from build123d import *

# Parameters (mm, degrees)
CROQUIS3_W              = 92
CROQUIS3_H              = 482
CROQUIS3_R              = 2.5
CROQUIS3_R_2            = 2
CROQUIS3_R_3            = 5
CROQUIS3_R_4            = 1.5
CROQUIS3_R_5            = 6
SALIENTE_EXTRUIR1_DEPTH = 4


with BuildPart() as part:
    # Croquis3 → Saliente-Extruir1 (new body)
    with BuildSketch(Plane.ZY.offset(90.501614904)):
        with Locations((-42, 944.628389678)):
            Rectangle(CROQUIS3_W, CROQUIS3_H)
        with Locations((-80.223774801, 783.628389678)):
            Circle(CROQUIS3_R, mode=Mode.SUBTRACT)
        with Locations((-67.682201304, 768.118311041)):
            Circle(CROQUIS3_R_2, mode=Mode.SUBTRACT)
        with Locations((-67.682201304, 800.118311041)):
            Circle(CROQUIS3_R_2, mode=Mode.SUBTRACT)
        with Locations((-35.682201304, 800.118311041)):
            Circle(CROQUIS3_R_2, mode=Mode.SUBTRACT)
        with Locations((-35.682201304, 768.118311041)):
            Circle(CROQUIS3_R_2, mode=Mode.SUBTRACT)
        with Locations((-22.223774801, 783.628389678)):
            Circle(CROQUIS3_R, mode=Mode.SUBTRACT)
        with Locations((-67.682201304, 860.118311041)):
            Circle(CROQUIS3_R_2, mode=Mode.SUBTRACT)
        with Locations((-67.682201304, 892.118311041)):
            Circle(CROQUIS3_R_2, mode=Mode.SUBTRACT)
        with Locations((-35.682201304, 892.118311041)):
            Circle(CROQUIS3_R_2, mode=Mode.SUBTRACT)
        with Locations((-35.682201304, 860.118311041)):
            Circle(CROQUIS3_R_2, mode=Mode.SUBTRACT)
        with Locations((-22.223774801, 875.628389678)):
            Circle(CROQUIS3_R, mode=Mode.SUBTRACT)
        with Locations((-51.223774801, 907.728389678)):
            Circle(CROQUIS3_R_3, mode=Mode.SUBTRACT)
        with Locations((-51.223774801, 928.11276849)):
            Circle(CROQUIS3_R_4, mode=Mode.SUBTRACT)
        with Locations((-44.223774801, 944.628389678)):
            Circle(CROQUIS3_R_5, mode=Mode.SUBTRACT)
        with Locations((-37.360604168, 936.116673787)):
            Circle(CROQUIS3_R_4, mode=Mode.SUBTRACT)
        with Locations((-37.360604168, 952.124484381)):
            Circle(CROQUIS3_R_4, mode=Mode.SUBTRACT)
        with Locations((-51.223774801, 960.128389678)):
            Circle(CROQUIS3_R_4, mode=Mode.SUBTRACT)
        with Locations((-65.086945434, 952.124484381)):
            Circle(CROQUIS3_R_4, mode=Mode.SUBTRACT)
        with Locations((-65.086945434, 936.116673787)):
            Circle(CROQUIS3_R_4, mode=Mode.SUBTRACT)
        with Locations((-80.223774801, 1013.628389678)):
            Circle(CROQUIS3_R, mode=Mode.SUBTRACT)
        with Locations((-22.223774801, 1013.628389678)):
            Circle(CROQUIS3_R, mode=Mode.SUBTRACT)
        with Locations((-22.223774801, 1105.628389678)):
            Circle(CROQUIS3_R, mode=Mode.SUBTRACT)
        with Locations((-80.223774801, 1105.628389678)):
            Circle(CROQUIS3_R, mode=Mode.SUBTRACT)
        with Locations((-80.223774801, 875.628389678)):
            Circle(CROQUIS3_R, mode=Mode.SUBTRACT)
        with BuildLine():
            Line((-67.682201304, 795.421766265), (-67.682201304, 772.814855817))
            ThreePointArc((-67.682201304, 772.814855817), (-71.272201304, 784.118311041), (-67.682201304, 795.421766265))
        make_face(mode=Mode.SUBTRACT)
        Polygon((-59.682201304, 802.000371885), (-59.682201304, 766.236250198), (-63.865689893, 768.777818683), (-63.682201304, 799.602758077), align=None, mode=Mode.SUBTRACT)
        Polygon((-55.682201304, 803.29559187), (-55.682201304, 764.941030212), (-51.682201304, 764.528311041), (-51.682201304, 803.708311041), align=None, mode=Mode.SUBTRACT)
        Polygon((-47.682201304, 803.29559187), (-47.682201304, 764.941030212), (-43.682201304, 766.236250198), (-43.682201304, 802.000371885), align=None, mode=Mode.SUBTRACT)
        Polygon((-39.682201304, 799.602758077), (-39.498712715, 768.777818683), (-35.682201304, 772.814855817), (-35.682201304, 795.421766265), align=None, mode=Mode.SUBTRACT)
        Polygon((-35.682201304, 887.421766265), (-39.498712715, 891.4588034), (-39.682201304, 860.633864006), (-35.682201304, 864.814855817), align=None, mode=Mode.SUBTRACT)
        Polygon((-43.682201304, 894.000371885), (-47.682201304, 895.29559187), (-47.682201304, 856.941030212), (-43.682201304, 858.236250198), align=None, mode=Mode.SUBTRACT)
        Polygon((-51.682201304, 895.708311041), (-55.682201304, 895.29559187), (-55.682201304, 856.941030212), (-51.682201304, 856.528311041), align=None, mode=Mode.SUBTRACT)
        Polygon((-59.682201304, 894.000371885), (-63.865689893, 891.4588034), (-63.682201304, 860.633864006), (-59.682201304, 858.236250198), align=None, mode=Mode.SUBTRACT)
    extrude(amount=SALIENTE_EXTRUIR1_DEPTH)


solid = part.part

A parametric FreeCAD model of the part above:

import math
import FreeCAD as App
import Part
import Sketcher
from FreeCAD import Vector

doc = App.newDocument("Part")
params = doc.addObject("Spreadsheet::Sheet", "Params")
for row, (alias, value) in enumerate([
    ("sketch1_diameter", "5 mm"),
    ("sketch1_diameter2", "4 mm"),
    ("sketch1_diameter3", "3 mm"),
    ("sketch1_diameter4", "10 mm"),
    ("sketch1_diameter5", "12 mm"),
    ("pad1_length", "4 mm"),
], start=1):
    params.set(f"A{row}", alias)
    params.set(f"B{row}", "=" + value)
    params.setAlias(f"B{row}", alias)

body = doc.addObject("PartDesign::Body", "Body")

# Sketch on YZ plane
sketch1 = body.newObject("Sketcher::SketchObject", "Sketch")
sketch1.AttachmentSupport = (doc.getObject("YZ_Plane"), [""])
sketch1.MapMode = "FlatFace"
sketch1.AttachmentOffset = App.Placement(Vector(0, 0, -90.501615), App.Rotation())
sketch1.addGeometry([
    Part.LineSegment(Vector(1185.6, -88, 0), Vector(703.6, -88, 0)),  # 0
    Part.LineSegment(Vector(703.6, -88, 0), Vector(703.6, 4, 0)),  # 1
    Part.LineSegment(Vector(703.6, 4, 0), Vector(1185.6, 4, 0)),  # 2
    Part.LineSegment(Vector(1185.6, 4, 0), Vector(1185.6, -88, 0)),  # 3
    Part.Circle(Vector(783.6, -80.2, 0), Vector(0, 0, 1), 2.5),  # 4
    Part.Circle(Vector(768.1, -67.7, 0), Vector(0, 0, 1), 2),  # 5
    Part.ArcOfCircle(Part.Circle(Vector(784.1, -51.7, 0), Vector(0, 0, 1), 19.6), math.radians(-125), math.radians(-55)),  # 6
    Part.LineSegment(Vector(795.4, -67.7, 0), Vector(772.8, -67.7, 0)),  # 7
    Part.Circle(Vector(800.1, -67.7, 0), Vector(0, 0, 1), 2),  # 8
    Part.LineSegment(Vector(799.6, -63.7, 0), Vector(802, -59.7, 0)),  # 9
    Part.LineSegment(Vector(802, -59.7, 0), Vector(766.2, -59.7, 0)),  # 10
    Part.LineSegment(Vector(766.2, -59.7, 0), Vector(768.8, -63.9, 0)),  # 11
    Part.LineSegment(Vector(768.8, -63.9, 0), Vector(799.6, -63.7, 0)),  # 12
    Part.LineSegment(Vector(764.9, -55.7, 0), Vector(803.3, -55.7, 0)),  # 13
    Part.LineSegment(Vector(803.3, -55.7, 0), Vector(803.7, -51.7, 0)),  # 14
    Part.LineSegment(Vector(803.7, -51.7, 0), Vector(764.5, -51.7, 0)),  # 15
    Part.LineSegment(Vector(764.5, -51.7, 0), Vector(764.9, -55.7, 0)),  # 16
    Part.Circle(Vector(875.6, -80.2, 0), Vector(0, 0, 1), 2.5),  # 17
    Part.Circle(Vector(860.1, -67.7, 0), Vector(0, 0, 1), 2),  # 18
    Part.Circle(Vector(892.1, -67.7, 0), Vector(0, 0, 1), 2),  # 19
    Part.LineSegment(Vector(891.5, -63.9, 0), Vector(894, -59.7, 0)),  # 20
    Part.LineSegment(Vector(894, -59.7, 0), Vector(858.2, -59.7, 0)),  # 21
    Part.LineSegment(Vector(858.2, -59.7, 0), Vector(860.6, -63.7, 0)),  # 22
    Part.LineSegment(Vector(860.6, -63.7, 0), Vector(891.5, -63.9, 0)),  # 23
    Part.LineSegment(Vector(895.3, -55.7, 0), Vector(895.7, -51.7, 0)),  # 24
    Part.LineSegment(Vector(895.7, -51.7, 0), Vector(856.5, -51.7, 0)),  # 25
    Part.LineSegment(Vector(856.5, -51.7, 0), Vector(856.9, -55.7, 0)),  # 26
    Part.LineSegment(Vector(856.9, -55.7, 0), Vector(895.3, -55.7, 0)),  # 27
    Part.Circle(Vector(936.1, -65.1, 0), Vector(0, 0, 1), 1.5),  # 28
    Part.LineSegment(Vector(764.9, -47.7, 0), Vector(803.3, -47.7, 0)),  # 29
    Part.LineSegment(Vector(803.3, -47.7, 0), Vector(802, -43.7, 0)),  # 30
    Part.LineSegment(Vector(802, -43.7, 0), Vector(766.2, -43.7, 0)),  # 31
    Part.LineSegment(Vector(766.2, -43.7, 0), Vector(764.9, -47.7, 0)),  # 32
    Part.Circle(Vector(768.1, -35.7, 0), Vector(0, 0, 1), 2),  # 33
    Part.LineSegment(Vector(768.8, -39.5, 0), Vector(799.6, -39.7, 0)),  # 34
    Part.LineSegment(Vector(799.6, -39.7, 0), Vector(795.4, -35.7, 0)),  # 35
    Part.LineSegment(Vector(795.4, -35.7, 0), Vector(772.8, -35.7, 0)),  # 36
    Part.LineSegment(Vector(772.8, -35.7, 0), Vector(768.8, -39.5, 0)),  # 37
    Part.Circle(Vector(800.1, -35.7, 0), Vector(0, 0, 1), 2),  # 38
    Part.Circle(Vector(783.6, -22.2, 0), Vector(0, 0, 1), 2.5),  # 39
    Part.LineSegment(Vector(895.3, -47.7, 0), Vector(894, -43.7, 0)),  # 40
    Part.LineSegment(Vector(894, -43.7, 0), Vector(858.2, -43.7, 0)),  # 41
    Part.LineSegment(Vector(858.2, -43.7, 0), Vector(856.9, -47.7, 0)),  # 42
    Part.LineSegment(Vector(856.9, -47.7, 0), Vector(895.3, -47.7, 0)),  # 43
    Part.Circle(Vector(860.1, -35.7, 0), Vector(0, 0, 1), 2),  # 44
    Part.LineSegment(Vector(891.5, -39.5, 0), Vector(887.4, -35.7, 0)),  # 45
    Part.LineSegment(Vector(887.4, -35.7, 0), Vector(864.8, -35.7, 0)),  # 46
    Part.LineSegment(Vector(864.8, -35.7, 0), Vector(860.6, -39.7, 0)),  # 47
    Part.LineSegment(Vector(860.6, -39.7, 0), Vector(891.5, -39.5, 0)),  # 48
    Part.Circle(Vector(892.1, -35.7, 0), Vector(0, 0, 1), 2),  # 49
    Part.Circle(Vector(907.7, -51.2, 0), Vector(0, 0, 1), 5),  # 50
    Part.Circle(Vector(928.1, -51.2, 0), Vector(0, 0, 1), 1.5),  # 51
    Part.Circle(Vector(936.1, -37.4, 0), Vector(0, 0, 1), 1.5),  # 52
    Part.Circle(Vector(875.6, -22.2, 0), Vector(0, 0, 1), 2.5),  # 53
    Part.Circle(Vector(1013.6, -80.2, 0), Vector(0, 0, 1), 2.5),  # 54
    Part.Circle(Vector(952.1, -65.1, 0), Vector(0, 0, 1), 1.5),  # 55
    Part.Circle(Vector(1105.6, -80.2, 0), Vector(0, 0, 1), 2.5),  # 56
    Part.Circle(Vector(944.6, -44.2, 0), Vector(0, 0, 1), 6),  # 57
    Part.Circle(Vector(960.1, -51.2, 0), Vector(0, 0, 1), 1.5),  # 58
    Part.Circle(Vector(952.1, -37.4, 0), Vector(0, 0, 1), 1.5),  # 59
    Part.Circle(Vector(1013.6, -22.2, 0), Vector(0, 0, 1), 2.5),  # 60
    Part.Circle(Vector(1105.6, -22.2, 0), Vector(0, 0, 1), 2.5),  # 61
], False)
sketch1.addConstraint([
    Sketcher.Constraint("Coincident", 0, 2, 1, 1),
    Sketcher.Constraint("Coincident", 1, 2, 2, 1),
    Sketcher.Constraint("Coincident", 2, 2, 3, 1),
    Sketcher.Constraint("Coincident", 3, 2, 0, 1),
    Sketcher.Constraint("Coincident", 6, 1, 7, 2),
    Sketcher.Constraint("Coincident", 7, 1, 6, 2),
    Sketcher.Constraint("Coincident", 9, 2, 10, 1),
    Sketcher.Constraint("Coincident", 10, 2, 11, 1),
    Sketcher.Constraint("Coincident", 11, 2, 12, 1),
    Sketcher.Constraint("Coincident", 12, 2, 9, 1),
    Sketcher.Constraint("Coincident", 13, 2, 14, 1),
    Sketcher.Constraint("Coincident", 14, 2, 15, 1),
    Sketcher.Constraint("Coincident", 15, 2, 16, 1),
    Sketcher.Constraint("Coincident", 16, 2, 13, 1),
    Sketcher.Constraint("Coincident", 20, 2, 21, 1),
    Sketcher.Constraint("Coincident", 21, 2, 22, 1),
    Sketcher.Constraint("Coincident", 22, 2, 23, 1),
    Sketcher.Constraint("Coincident", 23, 2, 20, 1),
    Sketcher.Constraint("Coincident", 24, 2, 25, 1),
    Sketcher.Constraint("Coincident", 25, 2, 26, 1),
    Sketcher.Constraint("Coincident", 26, 2, 27, 1),
    Sketcher.Constraint("Coincident", 27, 2, 24, 1),
    Sketcher.Constraint("Coincident", 29, 2, 30, 1),
    Sketcher.Constraint("Coincident", 30, 2, 31, 1),
    Sketcher.Constraint("Coincident", 31, 2, 32, 1),
    Sketcher.Constraint("Coincident", 32, 2, 29, 1),
    Sketcher.Constraint("Coincident", 34, 2, 35, 1),
    Sketcher.Constraint("Coincident", 35, 2, 36, 1),
    Sketcher.Constraint("Coincident", 36, 2, 37, 1),
    Sketcher.Constraint("Coincident", 37, 2, 34, 1),
    Sketcher.Constraint("Coincident", 40, 2, 41, 1),
    Sketcher.Constraint("Coincident", 41, 2, 42, 1),
    Sketcher.Constraint("Coincident", 42, 2, 43, 1),
    Sketcher.Constraint("Coincident", 43, 2, 40, 1),
    Sketcher.Constraint("Coincident", 45, 2, 46, 1),
    Sketcher.Constraint("Coincident", 46, 2, 47, 1),
    Sketcher.Constraint("Coincident", 47, 2, 48, 1),
    Sketcher.Constraint("Coincident", 48, 2, 45, 1),
    Sketcher.Constraint("Horizontal", 0),
    Sketcher.Constraint("Vertical", 1),
    Sketcher.Constraint("Horizontal", 2),
    Sketcher.Constraint("Vertical", 3),
    Sketcher.Constraint("Horizontal", 7),
    Sketcher.Constraint("Horizontal", 10),
    Sketcher.Constraint("Horizontal", 13),
    Sketcher.Constraint("Horizontal", 15),
    Sketcher.Constraint("Horizontal", 21),
    Sketcher.Constraint("Horizontal", 25),
    Sketcher.Constraint("Horizontal", 27),
    Sketcher.Constraint("Horizontal", 29),
    Sketcher.Constraint("Horizontal", 31),
    Sketcher.Constraint("Horizontal", 36),
    Sketcher.Constraint("Horizontal", 41),
    Sketcher.Constraint("Horizontal", 43),
    Sketcher.Constraint("Horizontal", 46),
    Sketcher.Constraint("Equal", 5, 8),
    Sketcher.Constraint("Equal", 4, 17),
    Sketcher.Constraint("Equal", 8, 18),
    Sketcher.Constraint("Equal", 18, 19),
    Sketcher.Constraint("Equal", 19, 33),
    Sketcher.Constraint("Equal", 33, 38),
    Sketcher.Constraint("Equal", 17, 39),
    Sketcher.Constraint("Equal", 38, 44),
    Sketcher.Constraint("Equal", 44, 49),
    Sketcher.Constraint("Equal", 28, 51),
    Sketcher.Constraint("Equal", 51, 52),
    Sketcher.Constraint("Equal", 39, 53),
    Sketcher.Constraint("Equal", 53, 54),
    Sketcher.Constraint("Equal", 52, 55),
    Sketcher.Constraint("Equal", 54, 56),
    Sketcher.Constraint("Equal", 55, 58),
    Sketcher.Constraint("Equal", 58, 59),
    Sketcher.Constraint("Equal", 56, 60),
    Sketcher.Constraint("Equal", 60, 61),
    Sketcher.Constraint("Parallel", 14, 24),
    Sketcher.Constraint("Parallel", 16, 26),
    Sketcher.Constraint("Parallel", 23, 34),
    Sketcher.Constraint("Parallel", 30, 40),
    Sketcher.Constraint("Parallel", 32, 42),
    Sketcher.Constraint("Parallel", 12, 48),
    Sketcher.Constraint("Horizontal", 5, 3, 8, 3),
    Sketcher.Constraint("Horizontal", 4, 3, 17, 3),
    Sketcher.Constraint("Horizontal", 8, 3, 18, 3),
    Sketcher.Constraint("Horizontal", 18, 3, 19, 3),
    Sketcher.Constraint("Horizontal", 33, 3, 38, 3),
    Sketcher.Constraint("Horizontal", 38, 3, 44, 3),
    Sketcher.Constraint("Horizontal", 44, 3, 49, 3),
    Sketcher.Constraint("Horizontal", 50, 3, 51, 3),
    Sketcher.Constraint("Horizontal", 39, 3, 53, 3),
    Sketcher.Constraint("Horizontal", 17, 3, 54, 3),
    Sketcher.Constraint("Horizontal", 28, 3, 55, 3),
    Sketcher.Constraint("Horizontal", 54, 3, 56, 3),
    Sketcher.Constraint("Horizontal", 51, 3, 58, 3),
    Sketcher.Constraint("Horizontal", 52, 3, 59, 3),
    Sketcher.Constraint("Horizontal", 53, 3, 60, 3),
    Sketcher.Constraint("Horizontal", 60, 3, 61, 3),
    Sketcher.Constraint("Horizontal", 19, 3, 6, 1),
    Sketcher.Constraint("Horizontal", 6, 3, 14, 2),
    Sketcher.Constraint("Horizontal", 10, 2, 20, 2),
    Sketcher.Constraint("Horizontal", 12, 2, 22, 2),
    Sketcher.Constraint("Horizontal", 11, 2, 23, 2),
    Sketcher.Constraint("Horizontal", 15, 2, 24, 2),
    Sketcher.Constraint("Horizontal", 16, 2, 26, 2),
    Sketcher.Constraint("Horizontal", 49, 3, 35, 2),
    Sketcher.Constraint("Horizontal", 31, 2, 40, 2),
    Sketcher.Constraint("Horizontal", 32, 2, 42, 2),
    Sketcher.Constraint("Horizontal", 36, 2, 45, 2),
    Sketcher.Constraint("Horizontal", 34, 2, 47, 2),
    Sketcher.Constraint("Horizontal", 37, 2, 48, 2),
    Sketcher.Constraint("Vertical", 5, 3, 33, 3),
    Sketcher.Constraint("Vertical", 8, 3, 38, 3),
    Sketcher.Constraint("Vertical", 4, 3, 39, 3),
    Sketcher.Constraint("Vertical", 18, 3, 44, 3),
    Sketcher.Constraint("Vertical", 19, 3, 49, 3),
    Sketcher.Constraint("Vertical", 28, 3, 52, 3),
    Sketcher.Constraint("Vertical", 17, 3, 53, 3),
    Sketcher.Constraint("Vertical", 55, 3, 59, 3),
    Sketcher.Constraint("Vertical", 54, 3, 60, 3),
    Sketcher.Constraint("Vertical", 56, 3, 61, 3),
    Sketcher.Constraint("Vertical", 13, 2, 29, 2),
    Sketcher.Constraint("Vertical", 9, 2, 30, 2),
    Sketcher.Constraint("Vertical", 10, 2, 31, 2),
    Sketcher.Constraint("Vertical", 16, 2, 32, 2),
    Sketcher.Constraint("Vertical", 12, 2, 34, 2),
    Sketcher.Constraint("Vertical", 7, 1, 35, 2),
    Sketcher.Constraint("Vertical", 6, 1, 36, 2),
    Sketcher.Constraint("Vertical", 11, 2, 37, 2),
    Sketcher.Constraint("Vertical", 20, 2, 40, 2),
    Sketcher.Constraint("Vertical", 21, 2, 41, 2),
    Sketcher.Constraint("Vertical", 26, 2, 42, 2),
    Sketcher.Constraint("Vertical", 27, 2, 43, 2),
    Sketcher.Constraint("Vertical", 22, 2, 47, 2),
    Sketcher.Constraint("Vertical", 23, 2, 48, 2),
    Sketcher.Constraint("Equal", 10, 21),
    Sketcher.Constraint("Equal", 36, 46),
    Sketcher.Constraint("Equal", 14, 16),
    Sketcher.Constraint("Equal", 11, 20),
    Sketcher.Constraint("Equal", 30, 32),
    Sketcher.Constraint("Equal", 37, 45),
    Sketcher.Constraint("Diameter", 4, 5.0),
    Sketcher.Constraint("Diameter", 5, 4.0),
    Sketcher.Constraint("Diameter", 28, 3.0),
    Sketcher.Constraint("Diameter", 50, 10.0),
    Sketcher.Constraint("Diameter", 57, 12.0),
    Sketcher.Constraint("DistanceX", 0, 2, 0, 1, 482.0),
    Sketcher.Constraint("DistanceY", 1, 1, 1, 2, 92.0),
    Sketcher.Constraint("Radius", 6, 19.59),
    Sketcher.Constraint("DistanceY", 0, 2, -1, 1, 88.0),
    Sketcher.Constraint("DistanceX", 15, 2, 15, 1, 39.18),
    Sketcher.Constraint("DistanceX", 7, 2, 7, 1, 22.60691),
    Sketcher.Constraint("DistanceX", 10, 2, 10, 1, 35.764122),
    Sketcher.Constraint("DistanceX", 13, 1, 13, 2, 38.354562),
    Sketcher.Constraint("DistanceY", 5, 3, -1, 1, 67.682201),
    Sketcher.Constraint("DistanceY", 33, 3, -1, 1, 35.682201),
    Sketcher.Constraint("DistanceY", 9, 2, -1, 1, 59.682201),
    Sketcher.Constraint("DistanceY", 12, 2, -1, 1, 63.682201),
    Sketcher.Constraint("DistanceY", 13, 2, -1, 1, 55.682201),
    Sketcher.Constraint("DistanceY", 29, 2, -1, 1, 47.682201),
    Sketcher.Constraint("DistanceY", 30, 2, -1, 1, 43.682201),
    Sketcher.Constraint("DistanceY", 34, 2, -1, 1, 39.682201),
    Sketcher.Constraint("Distance", 35, 5.78625),
    Sketcher.Constraint("DistanceX", -1, 1, 4, 3, 783.62839),
    Sketcher.Constraint("DistanceX", -1, 1, 5, 3, 768.118311),
    Sketcher.Constraint("DistanceX", -1, 1, 6, 3, 784.118311),
    Sketcher.Constraint("DistanceX", -1, 1, 8, 3, 800.118311),
    Sketcher.Constraint("DistanceX", -1, 1, 17, 3, 875.62839),
    Sketcher.Constraint("DistanceX", -1, 1, 18, 3, 860.118311),
    Sketcher.Constraint("DistanceX", -1, 1, 19, 3, 892.118311),
    Sketcher.Constraint("DistanceX", -1, 1, 50, 3, 907.72839),
    Sketcher.Constraint("DistanceX", -1, 1, 51, 3, 928.112768),
    Sketcher.Constraint("DistanceX", -1, 1, 54, 3, 1013.62839),
    Sketcher.Constraint("DistanceX", -1, 1, 56, 3, 1105.62839),
    Sketcher.Constraint("DistanceX", -1, 1, 57, 3, 944.62839),
    Sketcher.Constraint("DistanceX", -1, 1, 58, 3, 960.12839),
    Sketcher.Constraint("DistanceX", -1, 1, 0, 2, 703.62839),
    Sketcher.Constraint("DistanceX", -1, 1, 9, 2, 802.000372),
    Sketcher.Constraint("DistanceX", -1, 1, 11, 2, 768.777819),
    Sketcher.Constraint("DistanceY", 11, 2, -1, 1, 63.86569),
    Sketcher.Constraint("DistanceX", -1, 1, 20, 2, 894.000372),
    Sketcher.Constraint("DistanceY", 4, 3, -1, 1, 80.223775),
    Sketcher.Constraint("DistanceX", -1, 1, 28, 3, 936.116674),
    Sketcher.Constraint("DistanceY", 28, 3, -1, 1, 65.086945),
    Sketcher.Constraint("DistanceY", 39, 3, -1, 1, 22.223775),
    Sketcher.Constraint("DistanceY", 50, 3, -1, 1, 51.223775),
    Sketcher.Constraint("DistanceY", 52, 3, -1, 1, 37.360604),
    Sketcher.Constraint("DistanceX", -1, 1, 55, 3, 952.124484),
    Sketcher.Constraint("DistanceY", 57, 3, -1, 1, 44.223775),
])
sketch1.setExpression("Constraints[139]", "Params.sketch1_diameter")
sketch1.setExpression("Constraints[140]", "Params.sketch1_diameter2")
sketch1.setExpression("Constraints[141]", "Params.sketch1_diameter3")
sketch1.setExpression("Constraints[142]", "Params.sketch1_diameter4")
sketch1.setExpression("Constraints[143]", "Params.sketch1_diameter5")
pad1 = body.newObject("PartDesign::Pad", "Pad")
pad1.Profile = sketch1
pad1.setExpression("Length", "Params.pad1_length")
pad1.Reversed = True

doc.recompute()
